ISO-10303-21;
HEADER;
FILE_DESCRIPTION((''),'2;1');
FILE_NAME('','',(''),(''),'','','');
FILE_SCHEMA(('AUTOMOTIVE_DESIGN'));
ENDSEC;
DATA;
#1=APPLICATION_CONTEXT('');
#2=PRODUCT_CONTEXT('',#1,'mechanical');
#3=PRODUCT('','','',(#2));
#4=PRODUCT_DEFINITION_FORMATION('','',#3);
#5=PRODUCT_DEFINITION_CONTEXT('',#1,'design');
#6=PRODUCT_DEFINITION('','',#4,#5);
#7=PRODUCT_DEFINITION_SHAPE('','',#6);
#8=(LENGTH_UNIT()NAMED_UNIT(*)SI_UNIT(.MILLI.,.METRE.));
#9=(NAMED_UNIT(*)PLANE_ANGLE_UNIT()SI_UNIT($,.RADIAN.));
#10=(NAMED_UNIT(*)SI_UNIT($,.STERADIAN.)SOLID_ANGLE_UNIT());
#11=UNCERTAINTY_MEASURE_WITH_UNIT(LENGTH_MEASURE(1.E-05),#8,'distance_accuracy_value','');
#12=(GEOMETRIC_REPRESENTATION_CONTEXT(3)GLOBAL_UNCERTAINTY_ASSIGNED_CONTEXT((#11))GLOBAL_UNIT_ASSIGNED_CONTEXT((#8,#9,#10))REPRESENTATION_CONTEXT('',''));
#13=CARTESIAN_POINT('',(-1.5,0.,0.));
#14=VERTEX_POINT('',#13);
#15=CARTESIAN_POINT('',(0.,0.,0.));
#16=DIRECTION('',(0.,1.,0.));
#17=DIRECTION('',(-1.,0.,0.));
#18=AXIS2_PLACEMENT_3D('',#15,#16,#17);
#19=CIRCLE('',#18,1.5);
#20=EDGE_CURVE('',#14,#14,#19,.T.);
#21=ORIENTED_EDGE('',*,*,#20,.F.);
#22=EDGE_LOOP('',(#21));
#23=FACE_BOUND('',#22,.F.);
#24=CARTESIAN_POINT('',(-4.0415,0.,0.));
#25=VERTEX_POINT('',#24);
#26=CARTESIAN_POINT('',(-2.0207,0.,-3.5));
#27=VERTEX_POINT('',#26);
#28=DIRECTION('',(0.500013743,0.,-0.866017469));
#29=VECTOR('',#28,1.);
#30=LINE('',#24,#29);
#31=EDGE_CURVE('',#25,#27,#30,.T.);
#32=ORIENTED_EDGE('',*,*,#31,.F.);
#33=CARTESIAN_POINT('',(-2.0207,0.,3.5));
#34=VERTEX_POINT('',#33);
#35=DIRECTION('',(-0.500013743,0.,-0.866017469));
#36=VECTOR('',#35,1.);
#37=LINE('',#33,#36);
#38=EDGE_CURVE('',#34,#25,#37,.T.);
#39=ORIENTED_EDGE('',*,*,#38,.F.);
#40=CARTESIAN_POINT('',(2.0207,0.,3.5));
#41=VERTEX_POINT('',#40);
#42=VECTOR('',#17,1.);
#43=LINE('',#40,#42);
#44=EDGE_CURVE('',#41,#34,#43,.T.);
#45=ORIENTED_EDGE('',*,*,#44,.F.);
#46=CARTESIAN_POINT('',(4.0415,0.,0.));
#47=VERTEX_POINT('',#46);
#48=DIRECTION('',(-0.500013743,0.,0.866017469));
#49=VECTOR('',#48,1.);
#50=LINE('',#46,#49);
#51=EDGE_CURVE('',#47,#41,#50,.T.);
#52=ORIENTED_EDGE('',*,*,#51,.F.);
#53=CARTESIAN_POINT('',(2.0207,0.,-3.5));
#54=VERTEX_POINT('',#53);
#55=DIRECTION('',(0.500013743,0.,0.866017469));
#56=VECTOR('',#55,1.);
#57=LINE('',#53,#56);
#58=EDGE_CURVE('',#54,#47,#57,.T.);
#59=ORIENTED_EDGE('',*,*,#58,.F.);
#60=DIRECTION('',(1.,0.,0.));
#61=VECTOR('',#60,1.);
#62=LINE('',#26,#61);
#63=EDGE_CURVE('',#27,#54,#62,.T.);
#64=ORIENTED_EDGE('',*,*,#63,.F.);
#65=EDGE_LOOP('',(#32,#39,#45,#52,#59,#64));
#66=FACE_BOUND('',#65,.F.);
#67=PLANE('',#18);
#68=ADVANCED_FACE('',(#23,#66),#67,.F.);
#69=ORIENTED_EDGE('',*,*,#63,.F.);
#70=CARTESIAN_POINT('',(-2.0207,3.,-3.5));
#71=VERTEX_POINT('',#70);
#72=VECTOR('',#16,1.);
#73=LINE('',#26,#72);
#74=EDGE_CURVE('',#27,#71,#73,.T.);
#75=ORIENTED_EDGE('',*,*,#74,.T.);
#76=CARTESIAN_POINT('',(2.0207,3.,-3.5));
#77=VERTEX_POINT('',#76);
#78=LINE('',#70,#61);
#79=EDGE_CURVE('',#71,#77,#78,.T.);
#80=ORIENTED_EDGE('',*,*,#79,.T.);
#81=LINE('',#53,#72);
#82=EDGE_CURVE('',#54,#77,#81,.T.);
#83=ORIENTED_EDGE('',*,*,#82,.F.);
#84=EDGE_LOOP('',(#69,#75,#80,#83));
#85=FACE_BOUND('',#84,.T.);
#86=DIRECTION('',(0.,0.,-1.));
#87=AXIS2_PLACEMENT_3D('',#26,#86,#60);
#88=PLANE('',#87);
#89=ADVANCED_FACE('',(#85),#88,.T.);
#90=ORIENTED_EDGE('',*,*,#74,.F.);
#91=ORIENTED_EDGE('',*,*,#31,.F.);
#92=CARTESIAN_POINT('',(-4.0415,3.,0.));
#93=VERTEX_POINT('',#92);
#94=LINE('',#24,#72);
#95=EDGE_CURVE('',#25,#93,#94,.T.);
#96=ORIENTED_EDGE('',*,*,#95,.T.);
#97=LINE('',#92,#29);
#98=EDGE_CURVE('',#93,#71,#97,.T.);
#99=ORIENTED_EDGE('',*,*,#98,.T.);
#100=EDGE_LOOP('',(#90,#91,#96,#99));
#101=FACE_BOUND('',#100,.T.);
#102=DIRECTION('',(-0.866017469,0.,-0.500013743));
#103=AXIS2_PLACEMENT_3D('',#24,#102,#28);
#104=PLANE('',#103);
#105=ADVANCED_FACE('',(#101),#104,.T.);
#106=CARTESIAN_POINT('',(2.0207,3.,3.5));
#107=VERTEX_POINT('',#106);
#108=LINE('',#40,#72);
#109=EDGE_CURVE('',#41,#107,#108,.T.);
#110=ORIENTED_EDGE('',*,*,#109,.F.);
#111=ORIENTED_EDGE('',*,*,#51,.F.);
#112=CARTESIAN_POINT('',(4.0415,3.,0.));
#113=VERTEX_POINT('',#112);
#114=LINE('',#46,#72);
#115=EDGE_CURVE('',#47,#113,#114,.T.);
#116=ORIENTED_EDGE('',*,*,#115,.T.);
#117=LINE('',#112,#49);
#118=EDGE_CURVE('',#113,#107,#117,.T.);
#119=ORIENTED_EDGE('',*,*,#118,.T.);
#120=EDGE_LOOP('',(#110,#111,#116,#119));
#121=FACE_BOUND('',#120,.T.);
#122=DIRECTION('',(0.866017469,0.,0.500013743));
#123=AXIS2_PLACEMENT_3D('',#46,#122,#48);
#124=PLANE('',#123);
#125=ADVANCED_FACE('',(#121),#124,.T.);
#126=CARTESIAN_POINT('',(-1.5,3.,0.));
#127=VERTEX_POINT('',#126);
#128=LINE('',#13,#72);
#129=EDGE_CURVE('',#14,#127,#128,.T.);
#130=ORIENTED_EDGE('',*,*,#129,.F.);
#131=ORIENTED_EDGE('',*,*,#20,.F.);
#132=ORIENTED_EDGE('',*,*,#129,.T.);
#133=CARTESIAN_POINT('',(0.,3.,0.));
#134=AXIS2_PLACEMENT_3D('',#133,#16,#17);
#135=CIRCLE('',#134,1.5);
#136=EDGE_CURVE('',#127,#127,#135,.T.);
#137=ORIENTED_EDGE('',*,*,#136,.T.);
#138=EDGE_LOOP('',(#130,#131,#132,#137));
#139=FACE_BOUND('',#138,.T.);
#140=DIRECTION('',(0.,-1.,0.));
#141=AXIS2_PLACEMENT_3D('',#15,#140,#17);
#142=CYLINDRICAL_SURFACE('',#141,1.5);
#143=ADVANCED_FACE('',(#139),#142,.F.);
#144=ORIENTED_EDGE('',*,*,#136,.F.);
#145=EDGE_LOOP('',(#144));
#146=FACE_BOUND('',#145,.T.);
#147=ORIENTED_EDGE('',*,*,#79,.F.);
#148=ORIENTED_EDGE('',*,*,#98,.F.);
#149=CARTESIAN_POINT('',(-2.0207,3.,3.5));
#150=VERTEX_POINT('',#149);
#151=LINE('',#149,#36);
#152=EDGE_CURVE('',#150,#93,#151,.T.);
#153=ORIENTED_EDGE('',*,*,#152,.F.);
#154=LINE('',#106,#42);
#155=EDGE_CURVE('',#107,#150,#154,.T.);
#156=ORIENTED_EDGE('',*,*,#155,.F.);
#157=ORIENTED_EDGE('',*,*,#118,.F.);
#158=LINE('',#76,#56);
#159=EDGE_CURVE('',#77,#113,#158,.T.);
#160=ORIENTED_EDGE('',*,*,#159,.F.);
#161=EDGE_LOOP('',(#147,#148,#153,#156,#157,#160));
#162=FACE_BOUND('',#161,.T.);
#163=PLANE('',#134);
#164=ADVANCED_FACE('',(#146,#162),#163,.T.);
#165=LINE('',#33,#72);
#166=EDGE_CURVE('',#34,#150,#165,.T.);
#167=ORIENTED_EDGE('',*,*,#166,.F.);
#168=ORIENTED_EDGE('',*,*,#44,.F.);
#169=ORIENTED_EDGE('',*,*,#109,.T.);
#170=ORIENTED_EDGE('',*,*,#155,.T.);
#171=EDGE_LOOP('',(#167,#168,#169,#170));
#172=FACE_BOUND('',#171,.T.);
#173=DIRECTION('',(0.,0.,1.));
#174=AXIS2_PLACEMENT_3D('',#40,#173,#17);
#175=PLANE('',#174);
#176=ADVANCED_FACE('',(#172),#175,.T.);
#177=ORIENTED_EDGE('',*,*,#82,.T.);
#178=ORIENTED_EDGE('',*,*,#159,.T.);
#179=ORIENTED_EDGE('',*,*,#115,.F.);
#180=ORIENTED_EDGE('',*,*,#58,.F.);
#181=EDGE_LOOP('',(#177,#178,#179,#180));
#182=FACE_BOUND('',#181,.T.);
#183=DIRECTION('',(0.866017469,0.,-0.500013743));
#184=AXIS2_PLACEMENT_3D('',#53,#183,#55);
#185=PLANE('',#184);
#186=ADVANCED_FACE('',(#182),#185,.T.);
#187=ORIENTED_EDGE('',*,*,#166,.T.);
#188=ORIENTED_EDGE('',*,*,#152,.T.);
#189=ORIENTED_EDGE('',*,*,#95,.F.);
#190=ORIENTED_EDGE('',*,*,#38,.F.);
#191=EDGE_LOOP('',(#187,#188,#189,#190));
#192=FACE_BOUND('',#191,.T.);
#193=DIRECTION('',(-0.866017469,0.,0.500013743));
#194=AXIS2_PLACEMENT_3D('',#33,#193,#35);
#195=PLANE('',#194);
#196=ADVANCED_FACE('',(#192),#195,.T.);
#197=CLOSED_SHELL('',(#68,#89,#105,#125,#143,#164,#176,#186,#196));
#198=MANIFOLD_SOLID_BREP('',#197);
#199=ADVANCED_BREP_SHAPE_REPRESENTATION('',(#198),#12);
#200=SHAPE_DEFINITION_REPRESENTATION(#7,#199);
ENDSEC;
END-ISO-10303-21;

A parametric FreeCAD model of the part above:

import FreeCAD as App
import Part
import Sketcher

V = App.Vector
Q = App.Units.Quantity


def add_polygon(sketch, points):
    """Adds a closed chain of lines whose ends are joined by coincident constraints."""
    first, n = sketch.GeometryCount, len(points)
    for a, b in zip(points, points[1:] + points[:1]):
        sketch.addGeometry(Part.LineSegment(App.Vector(*a, 0), App.Vector(*b, 0)), False)
    for i in range(n):
        sketch.addConstraint(Sketcher.Constraint("Coincident", first + i, 2, first + (i + 1) % n, 1))

doc = App.newDocument("Part")
body = doc.addObject("PartDesign::Body", "Body")

sketch1 = doc.addObject("Sketcher::SketchObject", "Sketch")
body.addObject(sketch1)
sketch1.AttachmentSupport = (doc.XZ_Plane, [""])
sketch1.MapMode = "FlatFace"
add_polygon(sketch1, [(4.0415, 0), (2.0207, -3.5), (-2.0207, -3.5), (-4.0415, 0), (-2.0207, 3.5), (2.0207, 3.5)])
sketch1.addGeometry(Part.Circle(V(0, 0, 0), V(0, 0, 1), 1.5), False)
sketch1.addConstraint(Sketcher.Constraint("Horizontal", 1))
sketch1.addConstraint(Sketcher.Constraint("Horizontal", 4))
sketch1.addConstraint(Sketcher.Constraint("Coincident", 6, 3, -1, 1))
sketch1.addConstraint(Sketcher.Constraint("Symmetric", 0, 2, 3, 2, -1, 1))
sketch1.addConstraint(Sketcher.Constraint("Symmetric", 2, 2, 5, 2, -1, 1))
sketch1.addConstraint(Sketcher.Constraint("PointOnObject", 2, 2, -1))
sketch1.addConstraint(Sketcher.Constraint("Parallel", 2, 5))
sketch1.addConstraint(Sketcher.Constraint("Vertical", 1, 2, 3, 2))
sketch1.addConstraint(Sketcher.Constraint("Diameter", 6, Q("3 mm")))
sketch1.addConstraint(Sketcher.Constraint("DistanceY", 1, 2, 3, 2, Q("7 mm")))
sketch1.addConstraint(Sketcher.Constraint("Angle", 0, Q("-120.001 deg")))
sketch1.addConstraint(Sketcher.Constraint("DistanceX", 1, 2, 1, 1, Q("4.0414 mm")))
pad1 = doc.addObject("PartDesign::Pad", "Pad")
body.addObject(pad1)
pad1.Profile = sketch1
pad1.Length = 3
pad1.Reversed = True

doc.recompute()
